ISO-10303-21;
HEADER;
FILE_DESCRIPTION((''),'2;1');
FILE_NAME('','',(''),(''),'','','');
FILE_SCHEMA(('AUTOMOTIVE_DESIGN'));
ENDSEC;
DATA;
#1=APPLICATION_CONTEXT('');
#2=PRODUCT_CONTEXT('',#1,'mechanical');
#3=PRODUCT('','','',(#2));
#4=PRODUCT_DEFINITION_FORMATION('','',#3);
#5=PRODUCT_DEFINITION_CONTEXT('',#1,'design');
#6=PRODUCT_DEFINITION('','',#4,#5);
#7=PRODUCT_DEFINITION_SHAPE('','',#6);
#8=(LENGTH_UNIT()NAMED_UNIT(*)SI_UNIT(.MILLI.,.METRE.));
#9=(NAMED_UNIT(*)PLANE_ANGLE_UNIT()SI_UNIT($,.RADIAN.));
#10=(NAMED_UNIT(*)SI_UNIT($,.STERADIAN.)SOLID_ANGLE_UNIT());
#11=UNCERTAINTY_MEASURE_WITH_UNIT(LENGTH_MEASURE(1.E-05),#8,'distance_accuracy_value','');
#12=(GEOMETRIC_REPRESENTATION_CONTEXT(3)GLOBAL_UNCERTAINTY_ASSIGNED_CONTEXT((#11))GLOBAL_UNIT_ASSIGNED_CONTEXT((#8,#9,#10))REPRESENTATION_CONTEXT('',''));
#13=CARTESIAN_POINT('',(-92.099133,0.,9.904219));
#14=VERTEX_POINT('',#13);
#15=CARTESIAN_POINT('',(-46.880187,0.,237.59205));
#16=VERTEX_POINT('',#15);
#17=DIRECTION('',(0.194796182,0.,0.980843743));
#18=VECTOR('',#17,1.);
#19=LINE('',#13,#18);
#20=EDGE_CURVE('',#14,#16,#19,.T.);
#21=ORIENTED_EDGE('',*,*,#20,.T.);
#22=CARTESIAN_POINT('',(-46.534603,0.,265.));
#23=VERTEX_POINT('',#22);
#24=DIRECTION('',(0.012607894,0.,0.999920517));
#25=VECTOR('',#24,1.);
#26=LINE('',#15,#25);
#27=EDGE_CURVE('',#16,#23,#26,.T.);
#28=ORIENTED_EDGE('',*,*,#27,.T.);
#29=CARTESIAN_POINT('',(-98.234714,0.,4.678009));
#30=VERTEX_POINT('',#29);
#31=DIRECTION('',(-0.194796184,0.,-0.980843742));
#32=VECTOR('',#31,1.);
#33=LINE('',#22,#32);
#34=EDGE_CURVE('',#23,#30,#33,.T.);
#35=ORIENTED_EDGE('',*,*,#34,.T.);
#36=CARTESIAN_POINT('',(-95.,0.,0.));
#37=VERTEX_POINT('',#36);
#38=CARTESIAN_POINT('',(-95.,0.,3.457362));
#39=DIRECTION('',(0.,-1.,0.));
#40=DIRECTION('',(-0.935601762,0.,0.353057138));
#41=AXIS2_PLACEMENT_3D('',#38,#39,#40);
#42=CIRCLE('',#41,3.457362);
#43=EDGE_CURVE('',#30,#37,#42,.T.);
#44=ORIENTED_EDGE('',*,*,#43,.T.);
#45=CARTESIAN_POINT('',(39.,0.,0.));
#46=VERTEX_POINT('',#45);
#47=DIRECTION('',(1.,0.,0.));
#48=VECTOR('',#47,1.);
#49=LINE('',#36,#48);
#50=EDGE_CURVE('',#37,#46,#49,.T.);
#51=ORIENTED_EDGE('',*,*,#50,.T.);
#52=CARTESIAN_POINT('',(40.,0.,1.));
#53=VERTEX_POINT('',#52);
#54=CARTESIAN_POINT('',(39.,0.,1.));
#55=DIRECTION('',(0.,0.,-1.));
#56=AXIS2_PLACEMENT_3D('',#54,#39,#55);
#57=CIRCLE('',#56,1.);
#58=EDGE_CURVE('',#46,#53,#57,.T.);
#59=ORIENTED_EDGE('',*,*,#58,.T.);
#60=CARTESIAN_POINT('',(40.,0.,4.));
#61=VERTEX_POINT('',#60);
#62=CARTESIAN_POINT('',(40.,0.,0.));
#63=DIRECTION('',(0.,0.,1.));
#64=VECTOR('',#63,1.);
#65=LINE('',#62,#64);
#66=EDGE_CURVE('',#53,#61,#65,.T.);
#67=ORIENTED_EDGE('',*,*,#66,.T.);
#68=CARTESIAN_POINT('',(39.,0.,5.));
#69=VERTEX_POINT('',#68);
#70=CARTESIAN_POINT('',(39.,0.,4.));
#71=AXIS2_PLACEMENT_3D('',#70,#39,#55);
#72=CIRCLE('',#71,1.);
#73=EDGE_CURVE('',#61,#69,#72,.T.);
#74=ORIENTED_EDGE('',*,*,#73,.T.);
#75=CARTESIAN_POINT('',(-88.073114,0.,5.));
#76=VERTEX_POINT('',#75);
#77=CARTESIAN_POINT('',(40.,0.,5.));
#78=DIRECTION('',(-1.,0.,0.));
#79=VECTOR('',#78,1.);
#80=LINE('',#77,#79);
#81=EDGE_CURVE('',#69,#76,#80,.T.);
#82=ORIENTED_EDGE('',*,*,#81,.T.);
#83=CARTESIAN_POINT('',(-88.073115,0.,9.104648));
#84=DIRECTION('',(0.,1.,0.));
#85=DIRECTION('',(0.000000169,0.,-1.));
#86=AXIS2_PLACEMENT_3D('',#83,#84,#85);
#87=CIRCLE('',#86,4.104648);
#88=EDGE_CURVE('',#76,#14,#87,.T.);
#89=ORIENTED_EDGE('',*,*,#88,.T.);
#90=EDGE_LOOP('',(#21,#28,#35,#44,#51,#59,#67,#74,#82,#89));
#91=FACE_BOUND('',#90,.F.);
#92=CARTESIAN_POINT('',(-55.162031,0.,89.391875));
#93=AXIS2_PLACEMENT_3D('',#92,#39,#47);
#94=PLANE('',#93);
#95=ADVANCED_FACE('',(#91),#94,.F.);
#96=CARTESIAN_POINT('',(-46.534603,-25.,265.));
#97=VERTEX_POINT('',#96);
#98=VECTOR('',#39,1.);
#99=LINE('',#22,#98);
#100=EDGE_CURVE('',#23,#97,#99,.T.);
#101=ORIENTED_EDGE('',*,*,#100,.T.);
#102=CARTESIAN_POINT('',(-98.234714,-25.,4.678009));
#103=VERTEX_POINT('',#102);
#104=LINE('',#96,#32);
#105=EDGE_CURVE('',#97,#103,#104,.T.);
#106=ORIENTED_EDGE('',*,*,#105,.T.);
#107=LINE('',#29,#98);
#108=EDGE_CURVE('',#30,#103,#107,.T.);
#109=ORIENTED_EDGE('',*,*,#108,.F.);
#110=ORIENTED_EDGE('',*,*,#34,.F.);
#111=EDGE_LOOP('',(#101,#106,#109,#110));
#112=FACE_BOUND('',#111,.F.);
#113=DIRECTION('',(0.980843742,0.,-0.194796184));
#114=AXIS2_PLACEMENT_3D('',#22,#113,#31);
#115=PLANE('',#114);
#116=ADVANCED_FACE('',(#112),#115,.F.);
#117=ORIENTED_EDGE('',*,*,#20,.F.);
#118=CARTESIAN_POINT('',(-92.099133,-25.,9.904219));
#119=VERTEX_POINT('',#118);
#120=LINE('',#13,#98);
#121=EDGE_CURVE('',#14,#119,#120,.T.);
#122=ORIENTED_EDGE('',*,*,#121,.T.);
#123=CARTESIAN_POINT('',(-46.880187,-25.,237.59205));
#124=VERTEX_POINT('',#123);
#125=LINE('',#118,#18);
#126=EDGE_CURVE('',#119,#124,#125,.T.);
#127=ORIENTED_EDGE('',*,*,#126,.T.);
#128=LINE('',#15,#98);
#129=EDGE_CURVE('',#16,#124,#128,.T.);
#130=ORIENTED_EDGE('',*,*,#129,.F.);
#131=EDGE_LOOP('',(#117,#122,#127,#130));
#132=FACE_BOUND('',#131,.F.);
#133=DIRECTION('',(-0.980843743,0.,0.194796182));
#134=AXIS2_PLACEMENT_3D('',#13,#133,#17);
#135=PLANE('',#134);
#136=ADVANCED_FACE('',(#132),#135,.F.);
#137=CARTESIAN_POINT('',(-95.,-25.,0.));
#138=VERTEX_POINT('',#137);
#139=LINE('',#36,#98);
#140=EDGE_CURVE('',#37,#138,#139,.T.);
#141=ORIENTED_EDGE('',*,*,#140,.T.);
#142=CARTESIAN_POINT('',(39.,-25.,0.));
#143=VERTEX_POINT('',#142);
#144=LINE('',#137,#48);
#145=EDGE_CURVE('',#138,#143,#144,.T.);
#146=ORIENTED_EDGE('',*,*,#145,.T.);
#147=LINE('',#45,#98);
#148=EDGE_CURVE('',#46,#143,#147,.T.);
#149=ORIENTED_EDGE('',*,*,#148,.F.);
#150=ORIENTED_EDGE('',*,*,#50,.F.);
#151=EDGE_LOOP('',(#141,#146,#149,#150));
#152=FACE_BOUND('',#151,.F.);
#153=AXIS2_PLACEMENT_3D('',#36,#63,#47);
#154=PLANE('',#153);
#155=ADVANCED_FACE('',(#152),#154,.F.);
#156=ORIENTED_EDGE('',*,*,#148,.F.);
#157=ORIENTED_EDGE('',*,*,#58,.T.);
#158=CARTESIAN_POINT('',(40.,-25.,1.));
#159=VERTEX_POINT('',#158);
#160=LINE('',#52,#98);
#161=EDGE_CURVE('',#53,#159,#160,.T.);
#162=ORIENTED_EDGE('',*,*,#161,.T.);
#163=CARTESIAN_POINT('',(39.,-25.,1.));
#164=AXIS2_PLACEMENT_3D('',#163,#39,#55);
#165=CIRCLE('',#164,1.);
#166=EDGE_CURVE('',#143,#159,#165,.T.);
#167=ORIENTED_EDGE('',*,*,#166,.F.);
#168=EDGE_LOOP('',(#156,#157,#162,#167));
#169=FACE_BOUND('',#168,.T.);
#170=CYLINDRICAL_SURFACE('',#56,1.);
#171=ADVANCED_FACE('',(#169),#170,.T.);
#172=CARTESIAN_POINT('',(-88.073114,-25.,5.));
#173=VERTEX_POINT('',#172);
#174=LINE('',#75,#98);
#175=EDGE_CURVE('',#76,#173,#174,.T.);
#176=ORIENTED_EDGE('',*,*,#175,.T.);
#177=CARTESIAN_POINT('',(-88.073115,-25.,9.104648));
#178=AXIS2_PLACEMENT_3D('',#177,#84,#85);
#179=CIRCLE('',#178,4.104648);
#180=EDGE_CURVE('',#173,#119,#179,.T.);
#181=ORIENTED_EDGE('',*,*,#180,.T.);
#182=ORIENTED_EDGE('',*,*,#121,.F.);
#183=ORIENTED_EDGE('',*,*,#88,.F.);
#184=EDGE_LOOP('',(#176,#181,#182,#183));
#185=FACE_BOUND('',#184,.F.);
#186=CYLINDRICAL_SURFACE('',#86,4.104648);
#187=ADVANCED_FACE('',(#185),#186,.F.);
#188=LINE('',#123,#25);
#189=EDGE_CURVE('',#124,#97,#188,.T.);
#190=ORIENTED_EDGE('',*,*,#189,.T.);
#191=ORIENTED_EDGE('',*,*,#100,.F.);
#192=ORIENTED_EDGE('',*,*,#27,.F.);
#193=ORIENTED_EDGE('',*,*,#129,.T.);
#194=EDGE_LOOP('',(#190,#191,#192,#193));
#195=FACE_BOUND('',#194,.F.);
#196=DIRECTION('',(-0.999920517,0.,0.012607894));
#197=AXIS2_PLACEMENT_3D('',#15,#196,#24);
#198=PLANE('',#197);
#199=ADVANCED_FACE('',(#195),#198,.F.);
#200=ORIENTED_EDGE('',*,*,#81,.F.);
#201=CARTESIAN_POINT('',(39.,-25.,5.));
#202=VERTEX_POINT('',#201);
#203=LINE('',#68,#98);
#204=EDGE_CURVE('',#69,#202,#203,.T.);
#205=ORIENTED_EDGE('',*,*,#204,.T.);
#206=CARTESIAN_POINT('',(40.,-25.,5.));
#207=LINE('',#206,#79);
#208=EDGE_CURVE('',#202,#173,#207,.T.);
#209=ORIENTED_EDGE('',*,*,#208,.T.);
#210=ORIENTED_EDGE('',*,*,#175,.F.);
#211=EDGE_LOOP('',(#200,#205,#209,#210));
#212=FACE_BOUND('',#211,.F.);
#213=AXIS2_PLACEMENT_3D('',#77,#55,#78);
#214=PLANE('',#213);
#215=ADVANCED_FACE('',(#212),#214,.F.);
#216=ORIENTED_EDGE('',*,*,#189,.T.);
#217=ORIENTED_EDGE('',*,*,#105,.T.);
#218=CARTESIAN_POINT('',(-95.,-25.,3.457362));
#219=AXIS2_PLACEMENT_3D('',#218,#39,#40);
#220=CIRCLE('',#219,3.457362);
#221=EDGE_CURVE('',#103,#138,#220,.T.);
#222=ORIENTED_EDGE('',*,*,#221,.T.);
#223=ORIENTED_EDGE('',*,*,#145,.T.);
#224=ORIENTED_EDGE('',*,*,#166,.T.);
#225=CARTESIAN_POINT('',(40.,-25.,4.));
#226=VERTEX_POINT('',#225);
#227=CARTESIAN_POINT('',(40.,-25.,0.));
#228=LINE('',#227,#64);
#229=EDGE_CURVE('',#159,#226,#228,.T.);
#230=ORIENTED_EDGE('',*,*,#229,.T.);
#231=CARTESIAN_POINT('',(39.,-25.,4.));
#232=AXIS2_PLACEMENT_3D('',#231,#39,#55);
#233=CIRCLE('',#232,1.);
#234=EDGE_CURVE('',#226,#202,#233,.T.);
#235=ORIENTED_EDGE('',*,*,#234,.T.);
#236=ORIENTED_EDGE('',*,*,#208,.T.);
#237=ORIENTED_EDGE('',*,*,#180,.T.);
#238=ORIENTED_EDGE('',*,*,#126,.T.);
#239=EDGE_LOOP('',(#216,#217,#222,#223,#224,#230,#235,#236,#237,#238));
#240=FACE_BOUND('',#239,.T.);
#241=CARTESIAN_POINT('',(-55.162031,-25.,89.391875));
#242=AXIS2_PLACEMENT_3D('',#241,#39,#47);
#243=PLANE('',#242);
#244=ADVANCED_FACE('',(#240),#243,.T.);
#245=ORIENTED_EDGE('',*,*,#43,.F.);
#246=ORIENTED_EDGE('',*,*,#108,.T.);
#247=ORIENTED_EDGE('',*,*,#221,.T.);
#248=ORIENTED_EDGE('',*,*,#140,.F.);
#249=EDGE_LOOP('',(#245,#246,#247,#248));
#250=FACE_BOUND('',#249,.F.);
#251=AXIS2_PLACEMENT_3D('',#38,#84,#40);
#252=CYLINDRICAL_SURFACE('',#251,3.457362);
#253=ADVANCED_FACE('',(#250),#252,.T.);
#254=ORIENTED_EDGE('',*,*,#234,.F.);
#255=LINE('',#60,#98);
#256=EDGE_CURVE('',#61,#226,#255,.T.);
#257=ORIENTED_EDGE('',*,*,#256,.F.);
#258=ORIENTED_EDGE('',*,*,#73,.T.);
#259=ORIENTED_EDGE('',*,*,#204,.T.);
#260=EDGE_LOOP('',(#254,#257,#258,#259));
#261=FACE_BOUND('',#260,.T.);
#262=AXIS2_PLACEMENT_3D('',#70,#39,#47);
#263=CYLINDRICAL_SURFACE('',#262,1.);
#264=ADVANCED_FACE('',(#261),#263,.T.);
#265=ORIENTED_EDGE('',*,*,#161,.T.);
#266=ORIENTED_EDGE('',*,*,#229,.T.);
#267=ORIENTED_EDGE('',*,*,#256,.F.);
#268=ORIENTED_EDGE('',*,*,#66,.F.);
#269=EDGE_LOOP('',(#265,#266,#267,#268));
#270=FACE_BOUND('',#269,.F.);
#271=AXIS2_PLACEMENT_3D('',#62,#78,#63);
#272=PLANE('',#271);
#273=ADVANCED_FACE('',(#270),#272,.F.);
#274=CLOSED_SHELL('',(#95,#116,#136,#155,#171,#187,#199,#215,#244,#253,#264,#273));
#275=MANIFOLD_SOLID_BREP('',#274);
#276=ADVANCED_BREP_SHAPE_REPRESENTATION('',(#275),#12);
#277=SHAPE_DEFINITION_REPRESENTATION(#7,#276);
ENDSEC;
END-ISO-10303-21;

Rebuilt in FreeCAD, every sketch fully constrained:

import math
import FreeCAD as App
import Part
import Sketcher
from FreeCAD import Vector


def edges_at(feature, points):
    """Names of the edges that pass closest to the given points."""
    edges = feature.Shape.Edges
    near = lambda p: min(range(len(edges)), key=lambda i: edges[i].distToShape(Part.Vertex(*p))[0])
    return sorted({f"Edge{near(p) + 1}" for p in points})

doc = App.newDocument("Part")
params = doc.addObject("Spreadsheet::Sheet", "Params")
for row, (alias, value) in enumerate([
    ("sketch1_width", "135 mm"),
    ("sketch1_height", "5 mm"),
    ("pad1_length", "25 mm"),
    ("fillet_radius", "1 mm"),
], start=1):
    params.set(f"A{row}", alias)
    params.set(f"B{row}", "=" + value)
    params.setAlias(f"B{row}", alias)

body = doc.addObject("PartDesign::Body", "Body")

# Sketch on XZ plane
sketch1 = body.newObject("Sketcher::SketchObject", "Sketch")
sketch1.AttachmentSupport = (doc.getObject("XZ_Plane"), [""])
sketch1.MapMode = "FlatFace"
sketch1.addGeometry([
    Part.LineSegment(Vector(-95, 0, 0), Vector(40, 0, 0)),  # 0
    Part.LineSegment(Vector(40, 0, 0), Vector(40, 5, 0)),  # 1
    Part.LineSegment(Vector(40, 5, 0), Vector(-88.1, 5, 0)),  # 2
    Part.ArcOfCircle(Part.Circle(Vector(-88.1, 9.1, 0), Vector(0, 0, 1), 4.1), math.radians(169), math.radians(270)),  # 3
    Part.LineSegment(Vector(-92.1, 9.9, 0), Vector(-46.9, 237.6, 0)),  # 4
    Part.LineSegment(Vector(-46.9, 237.6, 0), Vector(-46.5, 265, 0)),  # 5
    Part.LineSegment(Vector(-46.5, 265, 0), Vector(-98.2, 4.7, 0)),  # 6
    Part.ArcOfCircle(Part.Circle(Vector(-95, 3.5, 0), Vector(0, 0, 1), 3.5), math.radians(159), math.radians(270)),  # 7
], False)
sketch1.addConstraint([
    Sketcher.Constraint("Coincident", 0, 2, 1, 1),
    Sketcher.Constraint("Coincident", 1, 2, 2, 1),
    Sketcher.Constraint("Tangent", 2, 2, 3, 2),
    Sketcher.Constraint("Tangent", 3, 1, 4, 1),
    Sketcher.Constraint("Coincident", 4, 2, 5, 1),
    Sketcher.Constraint("Coincident", 5, 2, 6, 1),
    Sketcher.Constraint("Coincident", 6, 2, 7, 1),
    Sketcher.Constraint("Tangent", 7, 2, 0, 1),
    Sketcher.Constraint("Horizontal", 0),
    Sketcher.Constraint("Vertical", 1),
    Sketcher.Constraint("Horizontal", 2),
    Sketcher.Constraint("PointOnObject", 0, 2, -1),
    Sketcher.Constraint("Parallel", 4, 6),
    Sketcher.Constraint("DistanceX", 0, 1, 0, 2, 135.0),
    Sketcher.Constraint("DistanceY", 1, 1, 1, 2, 5.0),
    Sketcher.Constraint("DistanceX", 7, 3, -1, 1, 95.0),
    Sketcher.Constraint("DistanceY", -1, 1, 5, 2, 265.0),
    Sketcher.Constraint("Radius", 3, 4.104648),
    Sketcher.Constraint("Radius", 7, 3.457362),
    Sketcher.Constraint("DistanceY", 3, 3, 4, 2, 228.487402),
    Sketcher.Constraint("DistanceX", 6, 2, 2, 2, 10.1616),
    Sketcher.Constraint("Distance", 6, 265.40618),
    Sketcher.Constraint("DistanceX", 2, 2, 2, 1, 128.073114),
])
sketch1.setExpression("Constraints[13]", "Params.sketch1_width")
sketch1.setExpression("Constraints[14]", "Params.sketch1_height")
pad1 = body.newObject("PartDesign::Pad", "Pad")
pad1.Profile = sketch1
pad1.setExpression("Length", "Params.pad1_length")
doc.recompute()

fillet = body.newObject("PartDesign::Fillet", "Fillet")
fillet.Base = (pad1, edges_at(pad1, [(40, -12.5, 5), (40, -12.5, 0)]))
fillet.setExpression("Radius", "Params.fillet_radius")

doc.recompute()
